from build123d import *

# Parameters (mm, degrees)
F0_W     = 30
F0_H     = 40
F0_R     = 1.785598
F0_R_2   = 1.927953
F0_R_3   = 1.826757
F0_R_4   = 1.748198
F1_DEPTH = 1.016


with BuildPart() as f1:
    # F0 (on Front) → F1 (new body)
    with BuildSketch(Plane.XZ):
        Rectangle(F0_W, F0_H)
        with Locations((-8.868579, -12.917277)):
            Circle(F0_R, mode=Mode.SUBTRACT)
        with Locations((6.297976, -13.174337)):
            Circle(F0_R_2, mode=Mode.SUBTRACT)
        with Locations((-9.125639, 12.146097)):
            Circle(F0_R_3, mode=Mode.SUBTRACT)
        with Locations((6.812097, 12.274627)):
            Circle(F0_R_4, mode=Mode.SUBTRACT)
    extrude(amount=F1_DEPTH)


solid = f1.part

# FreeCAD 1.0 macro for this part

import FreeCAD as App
import Part
import Sketcher

V = App.Vector
Q = App.Units.Quantity


def add_polygon(sketch, points):
    """Adds a closed chain of lines whose ends are joined by coincident constraints."""
    first, n = sketch.GeometryCount, len(points)
    for a, b in zip(points, points[1:] + points[:1]):
        sketch.addGeometry(Part.LineSegment(App.Vector(*a, 0), App.Vector(*b, 0)), False)
    for i in range(n):
        sketch.addConstraint(Sketcher.Constraint("Coincident", first + i, 2, first + (i + 1) % n, 1))

doc = App.newDocument("Part")
body = doc.addObject("PartDesign::Body", "Body")

# Sketch on XZ plane
sketch1 = doc.addObject("Sketcher::SketchObject", "Sketch")
body.addObject(sketch1)
sketch1.AttachmentSupport = (doc.XZ_Plane, [""])
sketch1.MapMode = "FlatFace"
add_polygon(sketch1, [(-15, 20), (-15, -20), (15, -20), (15, 20)])  # lines 0-3
sketch1.addGeometry(Part.Circle(V(-8.868579, -12.917277, 0), V(0, 0, 1), 1.785598), False)  # 4
sketch1.addGeometry(Part.Circle(V(6.297976, -13.174337, 0), V(0, 0, 1), 1.927953), False)  # 5
sketch1.addGeometry(Part.Circle(V(-9.125639, 12.146097, 0), V(0, 0, 1), 1.826757), False)  # 6
sketch1.addGeometry(Part.Circle(V(6.812097, 12.274627, 0), V(0, 0, 1), 1.748198), False)  # 7
sketch1.addConstraint([
    Sketcher.Constraint("Vertical", 0),
    Sketcher.Constraint("Horizontal", 1),
    Sketcher.Constraint("Vertical", 2),
    Sketcher.Constraint("Horizontal", 3),
    Sketcher.Constraint("Symmetric", 0, 2, 2, 2, -1, 1),
    Sketcher.Constraint("DistanceX", 1, 1, 1, 2, Q("30 mm")),
    Sketcher.Constraint("DistanceY", 0, 2, 0, 1, Q("40 mm")),
    Sketcher.Constraint("Diameter", 4, Q("3.571196 mm")),
    Sketcher.Constraint("Diameter", 5, Q("3.855906 mm")),
    Sketcher.Constraint("Diameter", 6, Q("3.653514 mm")),
    Sketcher.Constraint("Diameter", 7, Q("3.496396 mm")),
    Sketcher.Constraint("DistanceX", 4, 3, -1, 1, Q("8.868579 mm")),
    Sketcher.Constraint("DistanceX", 6, 3, -1, 1, Q("9.125639 mm")),
    Sketcher.Constraint("DistanceY", 5, 3, 4, 3, Q("0.25706 mm")),
    Sketcher.Constraint("DistanceY", 6, 3, 7, 3, Q("0.12853 mm")),
    Sketcher.Constraint("DistanceX", 5, 3, 7, 3, Q("0.514121 mm")),
    Sketcher.Constraint("DistanceY", 4, 3, -1, 1, Q("12.917277 mm")),
    Sketcher.Constraint("DistanceX", -1, 1, 5, 3, Q("6.297976 mm")),
    Sketcher.Constraint("DistanceY", -1, 1, 6, 3, Q("12.146097 mm")),
])
pad1 = doc.addObject("PartDesign::Pad", "Pad")
body.addObject(pad1)
pad1.Profile = sketch1
pad1.Length = 1.016

doc.recompute()
